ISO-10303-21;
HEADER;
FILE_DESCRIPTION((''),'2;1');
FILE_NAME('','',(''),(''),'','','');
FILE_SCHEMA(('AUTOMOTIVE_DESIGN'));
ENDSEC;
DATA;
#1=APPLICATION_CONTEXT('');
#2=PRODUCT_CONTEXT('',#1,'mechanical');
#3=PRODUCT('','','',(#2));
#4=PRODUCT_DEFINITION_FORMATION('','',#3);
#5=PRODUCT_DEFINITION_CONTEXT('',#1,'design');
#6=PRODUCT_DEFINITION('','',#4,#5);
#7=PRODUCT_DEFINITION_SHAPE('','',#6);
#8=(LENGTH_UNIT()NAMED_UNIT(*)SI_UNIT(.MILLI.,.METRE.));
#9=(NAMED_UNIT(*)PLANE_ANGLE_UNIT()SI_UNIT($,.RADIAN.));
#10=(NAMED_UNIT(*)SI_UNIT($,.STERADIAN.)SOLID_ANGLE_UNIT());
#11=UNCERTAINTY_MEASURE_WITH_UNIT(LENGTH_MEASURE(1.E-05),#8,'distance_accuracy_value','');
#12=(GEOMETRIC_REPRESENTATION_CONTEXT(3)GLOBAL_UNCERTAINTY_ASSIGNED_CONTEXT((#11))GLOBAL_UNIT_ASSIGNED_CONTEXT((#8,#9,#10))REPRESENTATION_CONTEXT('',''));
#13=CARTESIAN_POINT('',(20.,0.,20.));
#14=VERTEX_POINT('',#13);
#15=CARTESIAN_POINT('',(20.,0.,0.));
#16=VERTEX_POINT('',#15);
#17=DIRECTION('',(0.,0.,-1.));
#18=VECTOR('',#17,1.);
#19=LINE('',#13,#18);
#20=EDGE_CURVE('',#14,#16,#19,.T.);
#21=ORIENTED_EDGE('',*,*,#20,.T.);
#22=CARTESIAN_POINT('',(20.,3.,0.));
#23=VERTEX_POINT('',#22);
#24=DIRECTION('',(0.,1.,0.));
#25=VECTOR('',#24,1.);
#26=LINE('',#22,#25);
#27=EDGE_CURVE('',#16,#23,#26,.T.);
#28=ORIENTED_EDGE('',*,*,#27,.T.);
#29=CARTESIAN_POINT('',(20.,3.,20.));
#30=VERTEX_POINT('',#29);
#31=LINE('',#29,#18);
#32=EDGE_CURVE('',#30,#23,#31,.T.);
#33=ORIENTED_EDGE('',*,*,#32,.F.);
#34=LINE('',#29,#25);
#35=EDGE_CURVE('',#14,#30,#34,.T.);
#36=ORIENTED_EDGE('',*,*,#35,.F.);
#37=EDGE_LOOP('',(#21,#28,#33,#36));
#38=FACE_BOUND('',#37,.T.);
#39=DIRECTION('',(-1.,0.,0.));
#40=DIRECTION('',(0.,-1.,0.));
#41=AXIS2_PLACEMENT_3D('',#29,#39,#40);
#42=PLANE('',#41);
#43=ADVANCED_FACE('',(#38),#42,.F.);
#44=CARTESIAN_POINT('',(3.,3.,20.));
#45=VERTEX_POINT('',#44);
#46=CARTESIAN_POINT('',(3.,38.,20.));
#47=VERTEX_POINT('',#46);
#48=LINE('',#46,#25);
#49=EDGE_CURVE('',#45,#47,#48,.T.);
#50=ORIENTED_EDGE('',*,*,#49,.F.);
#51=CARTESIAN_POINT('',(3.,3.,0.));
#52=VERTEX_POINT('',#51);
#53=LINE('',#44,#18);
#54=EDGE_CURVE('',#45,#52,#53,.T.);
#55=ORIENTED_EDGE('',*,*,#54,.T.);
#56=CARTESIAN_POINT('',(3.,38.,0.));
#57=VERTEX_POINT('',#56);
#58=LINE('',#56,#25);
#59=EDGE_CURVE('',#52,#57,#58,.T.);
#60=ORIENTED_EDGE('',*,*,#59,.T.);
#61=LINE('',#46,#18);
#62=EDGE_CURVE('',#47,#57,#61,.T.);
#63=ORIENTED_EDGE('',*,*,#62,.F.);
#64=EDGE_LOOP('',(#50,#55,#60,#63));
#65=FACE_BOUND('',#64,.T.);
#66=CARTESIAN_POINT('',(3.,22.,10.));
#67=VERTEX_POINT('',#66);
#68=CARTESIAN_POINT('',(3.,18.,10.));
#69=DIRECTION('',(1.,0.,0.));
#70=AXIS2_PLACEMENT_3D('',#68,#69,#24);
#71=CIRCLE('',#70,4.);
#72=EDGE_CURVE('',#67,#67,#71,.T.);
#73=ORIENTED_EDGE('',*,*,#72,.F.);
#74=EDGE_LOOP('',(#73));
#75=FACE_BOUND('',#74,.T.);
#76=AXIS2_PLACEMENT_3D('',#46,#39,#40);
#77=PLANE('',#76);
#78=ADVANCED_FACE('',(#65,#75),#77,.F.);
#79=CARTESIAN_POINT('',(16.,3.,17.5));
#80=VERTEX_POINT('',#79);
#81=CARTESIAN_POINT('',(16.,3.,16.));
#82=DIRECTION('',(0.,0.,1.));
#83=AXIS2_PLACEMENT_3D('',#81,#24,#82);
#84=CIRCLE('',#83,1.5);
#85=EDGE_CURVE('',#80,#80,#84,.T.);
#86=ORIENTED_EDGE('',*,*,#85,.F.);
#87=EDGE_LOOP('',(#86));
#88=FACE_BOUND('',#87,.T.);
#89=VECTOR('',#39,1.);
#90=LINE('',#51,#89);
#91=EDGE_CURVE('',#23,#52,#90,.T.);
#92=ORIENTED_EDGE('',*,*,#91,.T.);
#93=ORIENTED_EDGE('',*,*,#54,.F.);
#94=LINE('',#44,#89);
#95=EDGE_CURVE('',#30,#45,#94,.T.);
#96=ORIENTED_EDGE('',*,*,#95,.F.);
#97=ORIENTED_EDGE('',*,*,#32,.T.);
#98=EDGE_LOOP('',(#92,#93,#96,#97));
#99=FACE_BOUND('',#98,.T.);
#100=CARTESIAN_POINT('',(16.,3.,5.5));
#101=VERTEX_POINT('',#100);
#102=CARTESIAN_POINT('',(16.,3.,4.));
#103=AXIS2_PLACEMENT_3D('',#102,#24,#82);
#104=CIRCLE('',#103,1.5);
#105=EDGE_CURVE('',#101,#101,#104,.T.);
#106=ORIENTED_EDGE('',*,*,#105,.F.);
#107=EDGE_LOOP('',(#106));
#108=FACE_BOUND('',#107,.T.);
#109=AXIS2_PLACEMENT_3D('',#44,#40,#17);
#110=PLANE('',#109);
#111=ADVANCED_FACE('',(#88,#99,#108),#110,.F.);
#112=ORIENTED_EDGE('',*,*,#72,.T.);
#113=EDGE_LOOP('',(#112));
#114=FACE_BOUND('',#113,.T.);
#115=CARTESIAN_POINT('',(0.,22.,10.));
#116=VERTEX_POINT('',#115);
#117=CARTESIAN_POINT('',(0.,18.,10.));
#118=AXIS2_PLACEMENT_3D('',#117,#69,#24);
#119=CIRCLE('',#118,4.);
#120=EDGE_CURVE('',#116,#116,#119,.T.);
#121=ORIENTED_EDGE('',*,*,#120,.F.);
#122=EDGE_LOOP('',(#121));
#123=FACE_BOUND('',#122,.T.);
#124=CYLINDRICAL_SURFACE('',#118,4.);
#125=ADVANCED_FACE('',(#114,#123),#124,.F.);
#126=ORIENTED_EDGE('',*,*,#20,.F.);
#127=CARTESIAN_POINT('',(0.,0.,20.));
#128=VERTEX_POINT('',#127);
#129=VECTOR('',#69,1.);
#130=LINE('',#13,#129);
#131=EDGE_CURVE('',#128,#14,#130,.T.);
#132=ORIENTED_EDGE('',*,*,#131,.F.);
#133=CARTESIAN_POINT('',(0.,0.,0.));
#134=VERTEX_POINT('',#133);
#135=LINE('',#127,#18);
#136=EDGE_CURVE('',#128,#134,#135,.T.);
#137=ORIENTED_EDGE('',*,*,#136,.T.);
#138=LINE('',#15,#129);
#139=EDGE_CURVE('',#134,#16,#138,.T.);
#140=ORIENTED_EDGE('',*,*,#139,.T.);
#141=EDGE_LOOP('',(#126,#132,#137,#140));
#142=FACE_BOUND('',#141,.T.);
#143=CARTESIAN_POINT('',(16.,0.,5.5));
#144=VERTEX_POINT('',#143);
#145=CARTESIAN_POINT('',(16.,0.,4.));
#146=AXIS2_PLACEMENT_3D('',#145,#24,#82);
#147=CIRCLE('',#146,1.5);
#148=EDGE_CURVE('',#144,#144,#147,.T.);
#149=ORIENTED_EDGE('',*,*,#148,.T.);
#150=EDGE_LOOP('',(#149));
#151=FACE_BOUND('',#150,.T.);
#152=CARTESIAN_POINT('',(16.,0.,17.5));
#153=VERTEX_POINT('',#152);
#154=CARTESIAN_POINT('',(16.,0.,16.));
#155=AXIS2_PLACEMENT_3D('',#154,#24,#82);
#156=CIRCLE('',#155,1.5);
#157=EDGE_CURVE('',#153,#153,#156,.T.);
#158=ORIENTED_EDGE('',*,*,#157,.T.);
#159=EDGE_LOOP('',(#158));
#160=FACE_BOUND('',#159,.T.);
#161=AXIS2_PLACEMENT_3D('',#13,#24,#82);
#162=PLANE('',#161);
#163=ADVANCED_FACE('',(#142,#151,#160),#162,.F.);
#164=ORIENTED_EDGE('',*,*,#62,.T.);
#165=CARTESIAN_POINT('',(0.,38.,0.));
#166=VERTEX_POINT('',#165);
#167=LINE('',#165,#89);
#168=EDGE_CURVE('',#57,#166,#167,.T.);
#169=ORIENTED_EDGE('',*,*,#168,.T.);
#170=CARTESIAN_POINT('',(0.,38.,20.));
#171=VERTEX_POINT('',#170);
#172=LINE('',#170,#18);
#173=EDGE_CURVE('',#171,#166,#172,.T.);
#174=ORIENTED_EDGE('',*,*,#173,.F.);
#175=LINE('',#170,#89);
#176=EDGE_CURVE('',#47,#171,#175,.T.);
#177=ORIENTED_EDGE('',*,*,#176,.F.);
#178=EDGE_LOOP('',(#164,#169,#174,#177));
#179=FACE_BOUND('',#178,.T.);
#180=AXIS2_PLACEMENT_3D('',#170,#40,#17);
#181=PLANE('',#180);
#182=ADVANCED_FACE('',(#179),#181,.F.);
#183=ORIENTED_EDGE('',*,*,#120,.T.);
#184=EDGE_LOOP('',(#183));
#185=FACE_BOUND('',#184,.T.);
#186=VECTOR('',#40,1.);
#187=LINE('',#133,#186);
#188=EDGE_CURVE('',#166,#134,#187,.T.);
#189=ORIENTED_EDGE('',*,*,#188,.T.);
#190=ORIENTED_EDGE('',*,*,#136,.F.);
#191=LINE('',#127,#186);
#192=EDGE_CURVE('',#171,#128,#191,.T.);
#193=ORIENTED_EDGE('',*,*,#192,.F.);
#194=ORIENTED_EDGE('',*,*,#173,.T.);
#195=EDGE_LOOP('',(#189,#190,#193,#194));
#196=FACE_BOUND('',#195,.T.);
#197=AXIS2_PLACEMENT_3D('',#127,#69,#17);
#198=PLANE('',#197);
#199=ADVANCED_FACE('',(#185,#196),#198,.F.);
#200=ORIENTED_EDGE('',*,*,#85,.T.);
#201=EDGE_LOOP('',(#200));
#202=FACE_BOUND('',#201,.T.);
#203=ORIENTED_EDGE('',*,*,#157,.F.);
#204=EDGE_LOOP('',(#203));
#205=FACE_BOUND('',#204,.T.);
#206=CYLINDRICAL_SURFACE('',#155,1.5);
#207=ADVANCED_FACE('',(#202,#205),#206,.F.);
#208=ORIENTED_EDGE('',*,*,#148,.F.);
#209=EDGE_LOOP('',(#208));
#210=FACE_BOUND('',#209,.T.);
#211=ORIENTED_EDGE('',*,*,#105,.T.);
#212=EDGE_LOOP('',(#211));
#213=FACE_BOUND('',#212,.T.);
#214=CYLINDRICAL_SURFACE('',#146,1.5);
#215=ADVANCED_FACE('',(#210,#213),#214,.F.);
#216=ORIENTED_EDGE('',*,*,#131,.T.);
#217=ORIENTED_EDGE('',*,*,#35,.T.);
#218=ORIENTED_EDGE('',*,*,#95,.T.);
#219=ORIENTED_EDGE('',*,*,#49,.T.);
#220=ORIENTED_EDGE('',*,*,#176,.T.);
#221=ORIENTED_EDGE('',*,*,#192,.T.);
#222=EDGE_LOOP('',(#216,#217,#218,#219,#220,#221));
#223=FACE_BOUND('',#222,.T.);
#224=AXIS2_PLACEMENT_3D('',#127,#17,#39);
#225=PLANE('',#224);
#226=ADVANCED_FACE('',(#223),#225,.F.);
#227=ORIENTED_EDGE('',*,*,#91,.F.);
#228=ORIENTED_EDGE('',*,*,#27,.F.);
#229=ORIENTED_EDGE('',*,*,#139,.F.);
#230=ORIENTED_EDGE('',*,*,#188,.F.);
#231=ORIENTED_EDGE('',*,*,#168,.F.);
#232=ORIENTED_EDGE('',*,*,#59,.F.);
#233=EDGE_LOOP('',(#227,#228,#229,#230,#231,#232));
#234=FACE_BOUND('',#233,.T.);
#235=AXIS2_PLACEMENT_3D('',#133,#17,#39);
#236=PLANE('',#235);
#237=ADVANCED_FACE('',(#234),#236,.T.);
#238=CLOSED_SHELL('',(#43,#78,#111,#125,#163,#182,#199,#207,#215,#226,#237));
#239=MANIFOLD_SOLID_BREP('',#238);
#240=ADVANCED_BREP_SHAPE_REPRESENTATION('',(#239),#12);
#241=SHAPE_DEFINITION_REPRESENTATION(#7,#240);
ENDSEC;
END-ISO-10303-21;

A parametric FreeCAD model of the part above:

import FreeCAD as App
import Part
import Sketcher

doc = App.newDocument("Part")
params = doc.addObject("Spreadsheet::Sheet", "Params")
for row, (alias, value) in enumerate([
    ("sketch1_width", "20 mm"),
    ("sketch1_width2", "17 mm"),
    ("sketch1_height", "38 mm"),
    ("pad1_length", "20 mm"),
    ("sketch2_diameter", "3 mm"),
    ("sketch3_diameter", "8 mm"),
], start=1):
    params.set(f"A{row}", alias)
    params.set(f"B{row}", "=" + value)
    params.setAlias(f"B{row}", alias)

body = doc.addObject("PartDesign::Body", "Body")

# Sketch on XY plane
sketch1 = body.newObject("Sketcher::SketchObject", "Sketch")
sketch1.AttachmentSupport = (doc.getObject("XY_Plane"), [""])
sketch1.MapMode = "FlatFace"
sketch1.addGeometry([
    Part.LineSegment(App.Vector(0, 38, 0), App.Vector(0, 0, 0)),  # 0
    Part.LineSegment(App.Vector(0, 0, 0), App.Vector(20, 0, 0)),  # 1
    Part.LineSegment(App.Vector(20, 0, 0), App.Vector(20, 3, 0)),  # 2
    Part.LineSegment(App.Vector(20, 3, 0), App.Vector(3, 3, 0)),  # 3
    Part.LineSegment(App.Vector(3, 3, 0), App.Vector(3, 38, 0)),  # 4
    Part.LineSegment(App.Vector(3, 38, 0), App.Vector(0, 38, 0)),  # 5
], False)
sketch1.addConstraint([
    Sketcher.Constraint("Coincident", 0, 2, 1, 1),
    Sketcher.Constraint("Coincident", 1, 2, 2, 1),
    Sketcher.Constraint("Coincident", 2, 2, 3, 1),
    Sketcher.Constraint("Coincident", 3, 2, 4, 1),
    Sketcher.Constraint("Coincident", 4, 2, 5, 1),
    Sketcher.Constraint("Coincident", 5, 2, 0, 1),
    Sketcher.Constraint("Vertical", 0),
    Sketcher.Constraint("Horizontal", 1),
    Sketcher.Constraint("Vertical", 2),
    Sketcher.Constraint("Horizontal", 3),
    Sketcher.Constraint("Vertical", 4),
    Sketcher.Constraint("Horizontal", 5),
    Sketcher.Constraint("Coincident", 0, 2, -1, 1),
    Sketcher.Constraint("Equal", 5, 2),
    Sketcher.Constraint("DistanceX", 1, 1, 1, 2, 20.0),
    Sketcher.Constraint("DistanceX", 3, 2, 3, 1, 17.0),
    Sketcher.Constraint("DistanceY", 0, 2, 0, 1, 38.0),
])
sketch1.setExpression("Constraints[14]", "Params.sketch1_width")
sketch1.setExpression("Constraints[15]", "Params.sketch1_width2")
sketch1.setExpression("Constraints[16]", "Params.sketch1_height")
pad1 = body.newObject("PartDesign::Pad", "Pad")
pad1.Profile = sketch1
pad1.setExpression("Length", "Params.pad1_length")

# Sketch on XZ plane
sketch2 = body.newObject("Sketcher::SketchObject", "Sketch001")
sketch2.AttachmentSupport = (doc.getObject("XZ_Plane"), [""])
sketch2.MapMode = "FlatFace"
sketch2.AttachmentOffset = App.Placement(App.Vector(0, 0, -3), App.Rotation())
sketch2.addGeometry([
    Part.Circle(App.Vector(16, 16, 0), App.Vector(0, 0, 1), 1.5),
    Part.Circle(App.Vector(16, 4, 0), App.Vector(0, 0, 1), 1.5),
], False)
sketch2.addConstraint([
    Sketcher.Constraint("Equal", 0, 1),
    Sketcher.Constraint("Vertical", 0, 3, 1, 3),
    Sketcher.Constraint("Diameter", 0, 3.0),
    Sketcher.Constraint("DistanceX", -1, 1, 0, 3, 16.0),
    Sketcher.Constraint("DistanceY", -1, 1, 0, 3, 16.0),
    Sketcher.Constraint("DistanceY", -1, 1, 1, 3, 4.0),
])
sketch2.setExpression("Constraints[2]", "Params.sketch2_diameter")
pocket1 = body.newObject("PartDesign::Pocket", "Pocket")
pocket1.Profile = sketch2
pocket1.Type = "ThroughAll"
pocket1.Reversed = True

# Sketch on YZ plane
sketch3 = body.newObject("Sketcher::SketchObject", "Sketch002")
sketch3.AttachmentSupport = (doc.getObject("YZ_Plane"), [""])
sketch3.MapMode = "FlatFace"
sketch3.AttachmentOffset = App.Placement(App.Vector(0, 0, 3), App.Rotation())
sketch3.addGeometry(Part.Circle(App.Vector(18, 10, 0), App.Vector(0, 0, 1), 4), False)
sketch3.addConstraint([
    Sketcher.Constraint("Diameter", 0, 8.0),
    Sketcher.Constraint("DistanceX", -1, 1, 0, 3, 18.0),
    Sketcher.Constraint("DistanceY", -1, 1, 0, 3, 10.0),
])
sketch3.setExpression("Constraints[0]", "Params.sketch3_diameter")
pocket2 = body.newObject("PartDesign::Pocket", "Pocket001")
pocket2.Profile = sketch3
pocket2.Type = "ThroughAll"

doc.recompute()
